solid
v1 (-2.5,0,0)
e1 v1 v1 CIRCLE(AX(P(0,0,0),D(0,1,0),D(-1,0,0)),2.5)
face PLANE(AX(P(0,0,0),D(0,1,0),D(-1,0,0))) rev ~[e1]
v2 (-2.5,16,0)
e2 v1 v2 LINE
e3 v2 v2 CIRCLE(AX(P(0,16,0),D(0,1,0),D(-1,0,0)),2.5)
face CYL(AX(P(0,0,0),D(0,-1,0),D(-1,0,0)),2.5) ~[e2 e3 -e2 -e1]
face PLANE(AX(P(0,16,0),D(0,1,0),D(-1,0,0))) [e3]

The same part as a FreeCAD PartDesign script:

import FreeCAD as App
import Part
import Sketcher
from FreeCAD import Vector

doc = App.newDocument("Part")
body = doc.addObject("PartDesign::Body", "Body")

# Sketch on XZ plane
sketch1 = body.newObject("Sketcher::SketchObject", "Sketch")
sketch1.AttachmentSupport = (doc.getObject("XZ_Plane"), [""])
sketch1.MapMode = "FlatFace"
sketch1.addGeometry(Part.Circle(Vector(0, 0, 0), Vector(0, 0, 1), 2.5), False)
sketch1.addConstraint([
    Sketcher.Constraint("Coincident", 0, 3, -1, 1),
    Sketcher.Constraint("Diameter", 0, 5.0),
])
pad1 = body.newObject("PartDesign::Pad", "Pad")
pad1.Profile = sketch1
pad1.Length = 16
pad1.Reversed = True

doc.recompute()
